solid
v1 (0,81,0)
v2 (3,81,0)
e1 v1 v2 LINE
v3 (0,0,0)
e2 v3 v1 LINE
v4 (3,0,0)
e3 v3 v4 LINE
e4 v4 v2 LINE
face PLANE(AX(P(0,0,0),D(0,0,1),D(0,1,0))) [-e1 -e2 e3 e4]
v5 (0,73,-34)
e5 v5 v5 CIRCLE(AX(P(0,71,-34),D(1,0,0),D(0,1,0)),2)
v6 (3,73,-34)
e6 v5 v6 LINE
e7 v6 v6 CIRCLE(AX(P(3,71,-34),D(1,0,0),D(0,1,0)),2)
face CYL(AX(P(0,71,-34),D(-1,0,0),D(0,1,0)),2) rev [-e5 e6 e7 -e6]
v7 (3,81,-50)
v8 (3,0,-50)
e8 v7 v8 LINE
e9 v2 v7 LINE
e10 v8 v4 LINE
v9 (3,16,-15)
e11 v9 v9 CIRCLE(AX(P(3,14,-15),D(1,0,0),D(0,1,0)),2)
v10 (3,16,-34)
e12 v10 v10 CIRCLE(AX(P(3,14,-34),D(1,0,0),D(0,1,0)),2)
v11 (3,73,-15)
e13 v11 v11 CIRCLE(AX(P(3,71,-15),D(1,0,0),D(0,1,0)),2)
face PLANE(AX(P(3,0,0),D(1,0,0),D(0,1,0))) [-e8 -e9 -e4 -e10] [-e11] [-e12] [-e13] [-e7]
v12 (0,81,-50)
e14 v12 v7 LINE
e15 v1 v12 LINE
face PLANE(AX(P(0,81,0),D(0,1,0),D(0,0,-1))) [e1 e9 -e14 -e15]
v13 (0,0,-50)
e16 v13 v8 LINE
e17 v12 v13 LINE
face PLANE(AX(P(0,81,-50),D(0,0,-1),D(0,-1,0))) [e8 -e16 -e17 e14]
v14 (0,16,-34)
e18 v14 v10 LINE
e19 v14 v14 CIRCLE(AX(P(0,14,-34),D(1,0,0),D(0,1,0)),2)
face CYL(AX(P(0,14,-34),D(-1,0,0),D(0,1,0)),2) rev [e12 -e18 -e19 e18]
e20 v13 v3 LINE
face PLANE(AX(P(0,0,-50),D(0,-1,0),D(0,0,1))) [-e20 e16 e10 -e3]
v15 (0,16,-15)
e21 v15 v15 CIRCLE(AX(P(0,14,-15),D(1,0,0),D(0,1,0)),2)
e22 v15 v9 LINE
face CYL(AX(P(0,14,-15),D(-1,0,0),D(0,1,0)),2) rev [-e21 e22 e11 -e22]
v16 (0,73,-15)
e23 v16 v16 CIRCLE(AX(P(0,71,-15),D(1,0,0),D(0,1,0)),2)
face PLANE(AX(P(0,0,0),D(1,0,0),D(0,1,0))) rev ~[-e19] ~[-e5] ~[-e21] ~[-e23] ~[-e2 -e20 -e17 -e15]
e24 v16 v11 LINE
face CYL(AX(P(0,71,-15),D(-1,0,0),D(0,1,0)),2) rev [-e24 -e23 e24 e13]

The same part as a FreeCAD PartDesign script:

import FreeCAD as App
import Part
import Sketcher


def add_polygon(sketch, points):
    """Adds a closed chain of lines whose ends are joined by coincident constraints."""
    first, n = sketch.GeometryCount, len(points)
    for a, b in zip(points, points[1:] + points[:1]):
        sketch.addGeometry(Part.LineSegment(App.Vector(*a, 0), App.Vector(*b, 0)), False)
    for i in range(n):
        sketch.addConstraint(Sketcher.Constraint("Coincident", first + i, 2, first + (i + 1) % n, 1))

doc = App.newDocument("Part")
body = doc.addObject("PartDesign::Body", "Body")
body.AllowCompound = True

# Sketch on YZ plane
sketch1 = body.newObject("Sketcher::SketchObject", "Sketch")
sketch1.AttachmentSupport = (doc.getObject("YZ_Plane"), [""])
sketch1.MapMode = "FlatFace"
add_polygon(sketch1, [(81, 0), (0, 0), (0, -50), (81, -50)])  # lines 0-3
sketch1.addGeometry(Part.Circle(App.Vector(14, -34, 0), App.Vector(0, 0, 1), 2), False)  # 4
sketch1.addGeometry(Part.Circle(App.Vector(71, -34, 0), App.Vector(0, 0, 1), 2), False)  # 5
sketch1.addGeometry(Part.Circle(App.Vector(14, -15, 0), App.Vector(0, 0, 1), 2), False)  # 6
sketch1.addGeometry(Part.Circle(App.Vector(71, -15, 0), App.Vector(0, 0, 1), 2), False)  # 7
sketch1.addConstraint([
    Sketcher.Constraint("Horizontal", 0),
    Sketcher.Constraint("Vertical", 1),
    Sketcher.Constraint("Horizontal", 2),
    Sketcher.Constraint("Vertical", 3),
    Sketcher.Constraint("Coincident", 0, 2, -1, 1),
    Sketcher.Constraint("Equal", 4, 5),
    Sketcher.Constraint("Equal", 5, 6),
    Sketcher.Constraint("Equal", 6, 7),
    Sketcher.Constraint("Horizontal", 4, 3, 5, 3),
    Sketcher.Constraint("Horizontal", 6, 3, 7, 3),
    Sketcher.Constraint("Vertical", 4, 3, 6, 3),
    Sketcher.Constraint("Vertical", 5, 3, 7, 3),
    Sketcher.Constraint("Diameter", 4, 4.0),
    Sketcher.Constraint("DistanceX", 0, 2, 0, 1, 81.0),
    Sketcher.Constraint("DistanceY", 1, 2, 1, 1, 50.0),
    Sketcher.Constraint("DistanceY", 6, 3, -1, 1, 15.0),
    Sketcher.Constraint("DistanceX", 4, 3, 5, 3, 57.0),
    Sketcher.Constraint("DistanceY", 1, 2, 4, 3, 16.0),
    Sketcher.Constraint("DistanceX", 5, 3, 2, 2, 10.0),
])
pad1 = body.newObject("PartDesign::Pad", "Pad")
pad1.Profile = sketch1
pad1.Length = 3

# Sketch on XZ plane
sketch2 = body.newObject("Sketcher::SketchObject", "Sketch001")
sketch2.AttachmentSupport = (doc.getObject("XZ_Plane"), [""])
sketch2.MapMode = "FlatFace"
sketch2.AttachmentOffset = App.Placement(App.Vector(0, 0, -81), App.Rotation())
sketch2.addGeometry(Part.Circle(App.Vector(7, -25, 0), App.Vector(0, 0, 1), 4), False)
sketch2.addConstraint([
    Sketcher.Constraint("Diameter", 0, 8.0),
    Sketcher.Constraint("DistanceY", 0, 3, -1, 1, 25.0),
    Sketcher.Constraint("DistanceX", -1, 1, 0, 3, 7.0),
])
pad2 = body.newObject("PartDesign::Pad", "Pad001")
pad2.Profile = sketch2
pad2.Length = 81

# Sketch on XZ plane
sketch3 = body.newObject("Sketcher::SketchObject", "Sketch002")
sketch3.AttachmentSupport = (doc.getObject("XZ_Plane"), [""])
sketch3.MapMode = "FlatFace"
sketch3.AttachmentOffset = App.Placement(App.Vector(0, 0, -81), App.Rotation())
sketch3.addGeometry(Part.Circle(App.Vector(7, -25, 0), App.Vector(0, 0, 1), 4), False)
sketch3.addConstraint([
    Sketcher.Constraint("Diameter", 0, 8.0),
    Sketcher.Constraint("DistanceY", 0, 3, -1, 1, 25.0),
    Sketcher.Constraint("DistanceX", -1, 1, 0, 3, 7.0),
])
pocket1 = body.newObject("PartDesign::Pocket", "Pocket")
pocket1.Profile = sketch3
pocket1.Length = 81
pocket1.Reversed = True

doc.recompute()
